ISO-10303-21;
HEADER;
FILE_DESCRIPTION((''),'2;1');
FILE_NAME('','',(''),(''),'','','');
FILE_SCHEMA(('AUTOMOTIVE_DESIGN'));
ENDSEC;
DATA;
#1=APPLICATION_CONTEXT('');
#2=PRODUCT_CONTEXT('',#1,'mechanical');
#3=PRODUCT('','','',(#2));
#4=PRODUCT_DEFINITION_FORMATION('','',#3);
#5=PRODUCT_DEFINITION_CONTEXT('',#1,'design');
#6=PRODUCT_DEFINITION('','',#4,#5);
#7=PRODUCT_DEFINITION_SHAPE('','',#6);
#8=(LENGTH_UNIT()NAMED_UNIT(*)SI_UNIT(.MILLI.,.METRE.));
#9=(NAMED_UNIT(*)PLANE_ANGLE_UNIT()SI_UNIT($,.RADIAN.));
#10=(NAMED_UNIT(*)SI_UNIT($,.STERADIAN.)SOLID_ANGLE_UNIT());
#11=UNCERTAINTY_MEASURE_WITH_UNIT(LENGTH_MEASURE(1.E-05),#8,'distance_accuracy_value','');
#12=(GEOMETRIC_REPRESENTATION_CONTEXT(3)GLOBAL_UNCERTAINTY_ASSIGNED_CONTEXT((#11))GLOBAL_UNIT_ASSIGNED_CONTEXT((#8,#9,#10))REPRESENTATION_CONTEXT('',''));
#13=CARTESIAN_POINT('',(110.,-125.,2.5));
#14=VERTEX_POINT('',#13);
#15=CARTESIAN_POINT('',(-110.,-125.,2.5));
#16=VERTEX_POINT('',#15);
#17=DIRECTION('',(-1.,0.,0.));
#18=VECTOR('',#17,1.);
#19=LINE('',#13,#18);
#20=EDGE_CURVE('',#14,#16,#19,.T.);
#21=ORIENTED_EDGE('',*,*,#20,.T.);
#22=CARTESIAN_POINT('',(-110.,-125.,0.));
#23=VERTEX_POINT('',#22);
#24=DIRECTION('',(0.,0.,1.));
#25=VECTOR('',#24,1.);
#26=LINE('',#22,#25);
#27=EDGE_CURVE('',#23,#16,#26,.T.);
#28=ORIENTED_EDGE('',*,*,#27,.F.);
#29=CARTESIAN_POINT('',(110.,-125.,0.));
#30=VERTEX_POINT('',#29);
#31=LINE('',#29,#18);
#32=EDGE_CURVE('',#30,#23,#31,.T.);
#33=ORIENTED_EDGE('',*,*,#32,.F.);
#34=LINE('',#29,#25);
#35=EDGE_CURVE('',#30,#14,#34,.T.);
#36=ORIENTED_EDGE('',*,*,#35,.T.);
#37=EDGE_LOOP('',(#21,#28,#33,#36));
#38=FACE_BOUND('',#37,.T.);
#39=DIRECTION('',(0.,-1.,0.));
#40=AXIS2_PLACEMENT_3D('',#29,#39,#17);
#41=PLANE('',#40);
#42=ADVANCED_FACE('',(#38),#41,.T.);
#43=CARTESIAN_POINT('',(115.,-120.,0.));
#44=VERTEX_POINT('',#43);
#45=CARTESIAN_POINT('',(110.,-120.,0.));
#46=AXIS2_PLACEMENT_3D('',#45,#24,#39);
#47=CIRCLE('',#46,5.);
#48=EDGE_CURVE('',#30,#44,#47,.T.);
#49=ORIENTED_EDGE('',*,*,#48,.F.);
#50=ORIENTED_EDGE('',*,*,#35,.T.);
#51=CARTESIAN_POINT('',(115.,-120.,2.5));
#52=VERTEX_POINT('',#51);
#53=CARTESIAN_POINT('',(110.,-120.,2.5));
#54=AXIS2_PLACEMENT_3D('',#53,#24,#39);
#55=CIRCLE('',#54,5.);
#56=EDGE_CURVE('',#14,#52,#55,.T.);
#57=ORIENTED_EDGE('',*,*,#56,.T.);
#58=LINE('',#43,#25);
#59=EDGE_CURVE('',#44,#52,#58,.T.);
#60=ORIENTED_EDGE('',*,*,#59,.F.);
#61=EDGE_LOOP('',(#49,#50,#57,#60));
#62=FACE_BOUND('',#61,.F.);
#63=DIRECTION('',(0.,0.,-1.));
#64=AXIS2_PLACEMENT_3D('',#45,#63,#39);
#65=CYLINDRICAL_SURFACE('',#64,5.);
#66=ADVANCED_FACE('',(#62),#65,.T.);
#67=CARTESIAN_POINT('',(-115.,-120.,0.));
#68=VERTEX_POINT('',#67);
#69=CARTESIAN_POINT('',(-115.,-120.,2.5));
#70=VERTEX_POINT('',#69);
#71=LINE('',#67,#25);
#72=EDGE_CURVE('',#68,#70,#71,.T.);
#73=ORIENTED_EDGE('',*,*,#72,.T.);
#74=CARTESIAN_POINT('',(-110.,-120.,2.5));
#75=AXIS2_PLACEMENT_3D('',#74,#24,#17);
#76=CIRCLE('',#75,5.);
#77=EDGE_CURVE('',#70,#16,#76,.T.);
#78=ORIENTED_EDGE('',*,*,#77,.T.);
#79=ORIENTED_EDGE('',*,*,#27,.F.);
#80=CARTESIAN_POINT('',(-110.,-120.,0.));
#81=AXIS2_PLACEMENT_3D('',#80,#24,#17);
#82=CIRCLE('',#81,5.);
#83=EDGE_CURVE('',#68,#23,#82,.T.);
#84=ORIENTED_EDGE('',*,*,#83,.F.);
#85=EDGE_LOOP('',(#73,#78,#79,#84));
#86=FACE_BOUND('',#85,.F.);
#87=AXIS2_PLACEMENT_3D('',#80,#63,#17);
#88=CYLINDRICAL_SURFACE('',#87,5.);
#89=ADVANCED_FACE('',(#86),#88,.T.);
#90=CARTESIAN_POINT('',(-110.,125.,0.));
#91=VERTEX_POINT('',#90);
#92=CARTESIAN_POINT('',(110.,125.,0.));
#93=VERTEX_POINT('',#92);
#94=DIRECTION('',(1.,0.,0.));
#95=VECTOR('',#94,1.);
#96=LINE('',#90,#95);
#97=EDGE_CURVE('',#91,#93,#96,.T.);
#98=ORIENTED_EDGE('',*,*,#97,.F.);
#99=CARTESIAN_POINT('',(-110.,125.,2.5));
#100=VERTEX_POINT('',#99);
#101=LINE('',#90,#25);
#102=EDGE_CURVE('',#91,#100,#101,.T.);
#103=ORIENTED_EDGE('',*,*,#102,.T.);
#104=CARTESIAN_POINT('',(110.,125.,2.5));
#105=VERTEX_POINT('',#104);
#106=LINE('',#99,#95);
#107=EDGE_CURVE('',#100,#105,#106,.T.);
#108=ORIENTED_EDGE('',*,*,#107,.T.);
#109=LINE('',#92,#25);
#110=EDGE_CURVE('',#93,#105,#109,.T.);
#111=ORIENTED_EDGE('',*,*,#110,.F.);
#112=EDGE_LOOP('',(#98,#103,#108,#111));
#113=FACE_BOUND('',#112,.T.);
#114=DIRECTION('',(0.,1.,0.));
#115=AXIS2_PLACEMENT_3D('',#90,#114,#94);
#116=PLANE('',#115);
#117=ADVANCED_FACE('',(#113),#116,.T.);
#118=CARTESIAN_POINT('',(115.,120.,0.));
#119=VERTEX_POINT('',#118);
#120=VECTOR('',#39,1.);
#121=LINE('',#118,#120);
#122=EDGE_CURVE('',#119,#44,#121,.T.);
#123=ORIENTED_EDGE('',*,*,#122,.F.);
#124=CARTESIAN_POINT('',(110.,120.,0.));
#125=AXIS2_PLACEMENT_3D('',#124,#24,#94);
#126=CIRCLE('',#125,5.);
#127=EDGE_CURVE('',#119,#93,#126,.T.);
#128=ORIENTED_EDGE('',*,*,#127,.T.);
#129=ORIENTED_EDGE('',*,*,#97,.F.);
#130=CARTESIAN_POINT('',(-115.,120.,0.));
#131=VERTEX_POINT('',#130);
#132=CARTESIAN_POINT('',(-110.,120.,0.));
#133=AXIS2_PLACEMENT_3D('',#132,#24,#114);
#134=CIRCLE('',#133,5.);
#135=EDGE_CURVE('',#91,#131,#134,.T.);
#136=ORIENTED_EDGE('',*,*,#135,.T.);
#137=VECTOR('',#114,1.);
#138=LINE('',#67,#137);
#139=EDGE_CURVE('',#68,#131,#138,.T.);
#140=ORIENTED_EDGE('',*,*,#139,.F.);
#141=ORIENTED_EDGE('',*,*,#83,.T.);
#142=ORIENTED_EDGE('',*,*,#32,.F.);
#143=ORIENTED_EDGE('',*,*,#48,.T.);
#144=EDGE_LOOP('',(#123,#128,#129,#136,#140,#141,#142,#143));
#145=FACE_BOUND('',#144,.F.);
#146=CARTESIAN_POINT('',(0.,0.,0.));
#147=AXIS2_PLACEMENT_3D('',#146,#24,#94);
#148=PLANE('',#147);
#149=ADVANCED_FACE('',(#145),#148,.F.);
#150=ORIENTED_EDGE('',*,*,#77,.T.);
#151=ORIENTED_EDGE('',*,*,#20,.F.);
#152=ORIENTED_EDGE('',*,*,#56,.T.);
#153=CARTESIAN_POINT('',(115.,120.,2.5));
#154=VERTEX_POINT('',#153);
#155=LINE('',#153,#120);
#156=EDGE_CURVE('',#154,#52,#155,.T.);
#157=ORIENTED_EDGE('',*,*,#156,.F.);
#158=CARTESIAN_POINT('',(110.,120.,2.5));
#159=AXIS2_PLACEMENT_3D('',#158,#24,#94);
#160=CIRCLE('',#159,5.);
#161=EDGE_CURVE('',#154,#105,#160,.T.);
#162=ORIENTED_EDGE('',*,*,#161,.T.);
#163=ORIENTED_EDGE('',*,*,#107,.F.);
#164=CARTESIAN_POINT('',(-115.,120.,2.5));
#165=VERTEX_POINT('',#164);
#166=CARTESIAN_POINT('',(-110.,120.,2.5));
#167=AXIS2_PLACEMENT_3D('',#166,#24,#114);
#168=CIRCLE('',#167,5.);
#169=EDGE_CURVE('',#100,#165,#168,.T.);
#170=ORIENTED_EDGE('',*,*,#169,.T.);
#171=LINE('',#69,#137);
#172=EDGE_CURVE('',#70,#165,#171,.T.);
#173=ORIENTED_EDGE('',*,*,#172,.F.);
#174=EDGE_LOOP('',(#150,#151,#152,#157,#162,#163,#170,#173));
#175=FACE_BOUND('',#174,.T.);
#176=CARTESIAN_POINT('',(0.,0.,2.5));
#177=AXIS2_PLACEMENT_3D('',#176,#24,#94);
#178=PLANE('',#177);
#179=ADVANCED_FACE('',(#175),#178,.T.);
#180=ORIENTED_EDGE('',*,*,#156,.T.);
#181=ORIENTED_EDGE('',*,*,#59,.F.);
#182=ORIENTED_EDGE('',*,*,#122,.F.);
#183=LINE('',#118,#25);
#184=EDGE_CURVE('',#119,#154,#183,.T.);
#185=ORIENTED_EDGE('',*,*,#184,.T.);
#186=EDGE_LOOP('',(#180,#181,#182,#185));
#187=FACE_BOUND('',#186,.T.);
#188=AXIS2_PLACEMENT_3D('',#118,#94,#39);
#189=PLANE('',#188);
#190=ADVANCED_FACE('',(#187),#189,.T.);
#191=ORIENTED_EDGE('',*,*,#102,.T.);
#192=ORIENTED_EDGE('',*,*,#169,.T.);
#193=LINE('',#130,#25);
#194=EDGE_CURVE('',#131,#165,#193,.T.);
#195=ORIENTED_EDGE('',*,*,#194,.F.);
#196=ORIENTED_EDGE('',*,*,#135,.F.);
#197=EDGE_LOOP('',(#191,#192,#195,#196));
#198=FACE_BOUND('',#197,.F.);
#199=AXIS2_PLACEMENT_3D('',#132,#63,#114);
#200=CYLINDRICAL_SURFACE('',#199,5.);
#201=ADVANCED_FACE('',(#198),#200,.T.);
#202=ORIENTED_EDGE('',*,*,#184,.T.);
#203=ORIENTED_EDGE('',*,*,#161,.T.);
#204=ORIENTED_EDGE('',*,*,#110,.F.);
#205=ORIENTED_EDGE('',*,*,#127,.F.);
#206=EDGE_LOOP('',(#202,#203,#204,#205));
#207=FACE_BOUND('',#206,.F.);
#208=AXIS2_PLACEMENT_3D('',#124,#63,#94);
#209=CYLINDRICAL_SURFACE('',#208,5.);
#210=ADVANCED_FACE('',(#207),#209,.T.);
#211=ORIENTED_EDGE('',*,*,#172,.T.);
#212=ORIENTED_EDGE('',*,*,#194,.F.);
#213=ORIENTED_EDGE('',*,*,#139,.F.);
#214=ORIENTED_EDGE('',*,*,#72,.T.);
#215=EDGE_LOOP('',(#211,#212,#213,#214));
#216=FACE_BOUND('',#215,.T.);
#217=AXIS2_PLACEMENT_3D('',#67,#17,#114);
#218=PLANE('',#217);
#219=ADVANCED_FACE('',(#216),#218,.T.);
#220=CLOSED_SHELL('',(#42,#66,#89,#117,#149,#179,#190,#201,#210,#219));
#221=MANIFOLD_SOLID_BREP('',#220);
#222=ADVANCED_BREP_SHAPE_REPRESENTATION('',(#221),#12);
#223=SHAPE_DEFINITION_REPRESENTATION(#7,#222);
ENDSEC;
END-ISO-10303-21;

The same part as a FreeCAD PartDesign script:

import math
import FreeCAD as App
import Part
import Sketcher
from FreeCAD import Vector

doc = App.newDocument("Part")
params = doc.addObject("Spreadsheet::Sheet", "Params")
for row, (alias, value) in enumerate([
    ("sketch1_radius", "5 mm"),
    ("sketch1_height", "240 mm"),
    ("pad1_length", "2.5 mm"),
], start=1):
    params.set(f"A{row}", alias)
    params.set(f"B{row}", "=" + value)
    params.setAlias(f"B{row}", alias)

body = doc.addObject("PartDesign::Body", "Body")

sketch1 = body.newObject("Sketcher::SketchObject", "Sketch")
sketch1.AttachmentSupport = (doc.getObject("XY_Plane"), [""])
sketch1.MapMode = "FlatFace"
sketch1.addGeometry([
    Part.LineSegment(Vector(110, 125, 0), Vector(-110, 125, 0)),
    Part.ArcOfCircle(Part.Circle(Vector(-110, 120, 0), Vector(0, 0, 1), 5), math.radians(90), math.radians(180)),
    Part.LineSegment(Vector(-115, 120, 0), Vector(-115, -120, 0)),
    Part.ArcOfCircle(Part.Circle(Vector(-110, -120, 0), Vector(0, 0, 1), 5), math.radians(180), math.radians(270)),
    Part.LineSegment(Vector(-110, -125, 0), Vector(110, -125, 0)),
    Part.ArcOfCircle(Part.Circle(Vector(110, -120, 0), Vector(0, 0, 1), 5), math.radians(-90), math.radians(0)),
    Part.LineSegment(Vector(115, -120, 0), Vector(115, 120, 0)),
    Part.ArcOfCircle(Part.Circle(Vector(110, 120, 0), Vector(0, 0, 1), 5), math.radians(0), math.radians(90)),
], False)
sketch1.addConstraint([
    Sketcher.Constraint("Tangent", 0, 2, 1, 1),
    Sketcher.Constraint("Tangent", 1, 2, 2, 1),
    Sketcher.Constraint("Tangent", 2, 2, 3, 1),
    Sketcher.Constraint("Tangent", 3, 2, 4, 1),
    Sketcher.Constraint("Tangent", 4, 2, 5, 1),
    Sketcher.Constraint("Tangent", 5, 2, 6, 1),
    Sketcher.Constraint("Tangent", 6, 2, 7, 1),
    Sketcher.Constraint("Tangent", 7, 2, 0, 1),
    Sketcher.Constraint("Horizontal", 0),
    Sketcher.Constraint("Vertical", 2),
    Sketcher.Constraint("Horizontal", 4),
    Sketcher.Constraint("Vertical", 6),
    Sketcher.Constraint("Equal", 1, 3),
    Sketcher.Constraint("Equal", 3, 5),
    Sketcher.Constraint("Equal", 5, 7),
    Sketcher.Constraint("Symmetric", 1, 3, 5, 3, -1, 1),
    Sketcher.Constraint("Radius", 1, 5.0),
    Sketcher.Constraint("DistanceX", 2, 2, 5, 2, 230.0),
    Sketcher.Constraint("DistanceY", 2, 2, 2, 1, 240.0),
])
sketch1.setExpression("Constraints[16]", "Params.sketch1_radius")
sketch1.setExpression("Constraints[18]", "Params.sketch1_height")
pad1 = body.newObject("PartDesign::Pad", "Pad")
pad1.Profile = sketch1
pad1.setExpression("Length", "Params.pad1_length")

doc.recompute()
